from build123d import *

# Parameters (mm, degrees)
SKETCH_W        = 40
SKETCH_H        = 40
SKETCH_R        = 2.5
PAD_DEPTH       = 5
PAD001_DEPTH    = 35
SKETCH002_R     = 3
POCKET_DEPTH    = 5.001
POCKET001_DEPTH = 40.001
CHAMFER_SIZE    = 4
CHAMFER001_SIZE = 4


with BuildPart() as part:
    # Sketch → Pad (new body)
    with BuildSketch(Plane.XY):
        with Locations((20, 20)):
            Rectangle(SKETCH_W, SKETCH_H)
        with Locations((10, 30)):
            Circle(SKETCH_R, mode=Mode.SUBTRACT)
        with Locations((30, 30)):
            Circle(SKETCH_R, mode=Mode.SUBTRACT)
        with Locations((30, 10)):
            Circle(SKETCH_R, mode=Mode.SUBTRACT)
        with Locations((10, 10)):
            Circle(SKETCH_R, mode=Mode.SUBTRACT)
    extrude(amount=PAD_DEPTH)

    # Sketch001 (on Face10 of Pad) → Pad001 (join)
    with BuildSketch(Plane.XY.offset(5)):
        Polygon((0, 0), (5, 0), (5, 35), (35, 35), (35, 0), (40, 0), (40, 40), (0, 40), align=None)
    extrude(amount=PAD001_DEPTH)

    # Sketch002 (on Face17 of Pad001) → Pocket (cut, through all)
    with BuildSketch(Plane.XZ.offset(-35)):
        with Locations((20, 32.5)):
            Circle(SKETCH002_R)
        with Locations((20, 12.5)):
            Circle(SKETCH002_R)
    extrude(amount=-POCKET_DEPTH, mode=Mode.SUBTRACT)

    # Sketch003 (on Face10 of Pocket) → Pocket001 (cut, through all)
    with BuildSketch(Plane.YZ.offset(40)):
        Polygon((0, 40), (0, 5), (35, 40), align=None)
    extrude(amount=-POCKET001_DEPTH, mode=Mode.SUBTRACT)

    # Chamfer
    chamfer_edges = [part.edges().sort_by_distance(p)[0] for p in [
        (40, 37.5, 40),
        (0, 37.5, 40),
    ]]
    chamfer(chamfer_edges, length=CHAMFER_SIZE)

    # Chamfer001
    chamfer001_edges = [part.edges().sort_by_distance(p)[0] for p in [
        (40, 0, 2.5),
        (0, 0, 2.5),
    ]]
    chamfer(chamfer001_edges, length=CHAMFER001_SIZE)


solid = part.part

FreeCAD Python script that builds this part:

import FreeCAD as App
import Part
import Sketcher
Q = App.Units.Quantity


def edges_at(feature, points):
    """Names of the edges that pass closest to the given points."""
    edges = feature.Shape.Edges
    near = lambda p: min(range(len(edges)), key=lambda i: edges[i].distToShape(Part.Vertex(*p))[0])
    return sorted({f"Edge{near(p) + 1}" for p in points})

doc = App.newDocument("Part")
body = doc.addObject("PartDesign::Body", "Body")

# Sketch on XY plane
sketch1 = body.newObject("Sketcher::SketchObject", "Sketch")
sketch1.AttachmentSupport = (doc.getObject("XY_Plane"), [""])
sketch1.MapMode = "FlatFace"
sketch1.addGeometry([
    Part.LineSegment(App.Vector(0, 40, 0), App.Vector(0, 0, 0)),  # 0
    Part.LineSegment(App.Vector(0, 0, 0), App.Vector(40, 0, 0)),  # 1
    Part.LineSegment(App.Vector(40, 0, 0), App.Vector(40, 40, 0)),  # 2
    Part.LineSegment(App.Vector(40, 40, 0), App.Vector(0, 40, 0)),  # 3
    Part.Circle(App.Vector(10, 10, 0), App.Vector(0, 0, 1), 2.5),  # 4
    Part.Circle(App.Vector(30, 10, 0), App.Vector(0, 0, 1), 2.5),  # 5
    Part.Circle(App.Vector(10, 30, 0), App.Vector(0, 0, 1), 2.5),  # 6
    Part.Circle(App.Vector(30, 30, 0), App.Vector(0, 0, 1), 2.5),  # 7
], False)
sketch1.addConstraint([
    Sketcher.Constraint("Coincident", 0, 2, 1, 1),
    Sketcher.Constraint("Coincident", 1, 2, 2, 1),
    Sketcher.Constraint("Coincident", 2, 2, 3, 1),
    Sketcher.Constraint("Coincident", 3, 2, 0, 1),
    Sketcher.Constraint("Vertical", 0),
    Sketcher.Constraint("Horizontal", 1),
    Sketcher.Constraint("Vertical", 2),
    Sketcher.Constraint("Horizontal", 3),
    Sketcher.Constraint("Coincident", 0, 2, -1, 1),
    Sketcher.Constraint("Equal", 4, 5),
    Sketcher.Constraint("Equal", 5, 6),
    Sketcher.Constraint("Equal", 6, 7),
    Sketcher.Constraint("Horizontal", 4, 3, 5, 3),
    Sketcher.Constraint("Horizontal", 6, 3, 7, 3),
    Sketcher.Constraint("Vertical", 4, 3, 6, 3),
    Sketcher.Constraint("Vertical", 5, 3, 7, 3),
    Sketcher.Constraint("Equal", 3, 0),
    Sketcher.Constraint("Diameter", 4, Q("5 mm")),
    Sketcher.Constraint("DistanceX", 1, 1, 1, 2, Q("40 mm")),
    Sketcher.Constraint("DistanceX", -1, 1, 4, 3, Q("10 mm")),
    Sketcher.Constraint("DistanceY", -1, 1, 4, 3, Q("10 mm")),
    Sketcher.Constraint("DistanceX", -1, 1, 5, 3, Q("30 mm")),
    Sketcher.Constraint("DistanceY", -1, 1, 6, 3, Q("30 mm")),
])
pad1 = body.newObject("PartDesign::Pad", "Pad")
pad1.Profile = sketch1
pad1.Length = 5

# Sketch on XY plane
sketch2 = body.newObject("Sketcher::SketchObject", "Sketch001")
sketch2.AttachmentSupport = (doc.getObject("XY_Plane"), [""])
sketch2.MapMode = "FlatFace"
sketch2.AttachmentOffset = App.Placement(App.Vector(0, 0, 5), App.Rotation())
sketch2.addGeometry([
    Part.LineSegment(App.Vector(0, 0, 0), App.Vector(5, 0, 0)),  # 0
    Part.LineSegment(App.Vector(5, 0, 0), App.Vector(5, 35, 0)),  # 1
    Part.LineSegment(App.Vector(5, 35, 0), App.Vector(35, 35, 0)),  # 2
    Part.LineSegment(App.Vector(35, 35, 0), App.Vector(35, 0, 0)),  # 3
    Part.LineSegment(App.Vector(35, 0, 0), App.Vector(40, 0, 0)),  # 4
    Part.LineSegment(App.Vector(40, 0, 0), App.Vector(40, 40, 0)),  # 5
    Part.LineSegment(App.Vector(40, 40, 0), App.Vector(0, 40, 0)),  # 6
    Part.LineSegment(App.Vector(0, 40, 0), App.Vector(0, 0, 0)),  # 7
], False)
sketch2.addConstraint([
    Sketcher.Constraint("Coincident", 0, 2, 1, 1),
    Sketcher.Constraint("Coincident", 1, 2, 2, 1),
    Sketcher.Constraint("Coincident", 2, 2, 3, 1),
    Sketcher.Constraint("Coincident", 3, 2, 4, 1),
    Sketcher.Constraint("Coincident", 4, 2, 5, 1),
    Sketcher.Constraint("Coincident", 5, 2, 6, 1),
    Sketcher.Constraint("Coincident", 6, 2, 7, 1),
    Sketcher.Constraint("Coincident", 7, 2, 0, 1),
    Sketcher.Constraint("Horizontal", 0),
    Sketcher.Constraint("Vertical", 1),
    Sketcher.Constraint("Horizontal", 2),
    Sketcher.Constraint("Vertical", 3),
    Sketcher.Constraint("Horizontal", 4),
    Sketcher.Constraint("Vertical", 5),
    Sketcher.Constraint("Horizontal", 6),
    Sketcher.Constraint("Vertical", 7),
    Sketcher.Constraint("Coincident", 7, 2, -1, 1),
    Sketcher.Constraint("PointOnObject", 3, 2, -1),
    Sketcher.Constraint("Equal", 0, 4),
    Sketcher.Constraint("Equal", 6, 5),
    Sketcher.Constraint("DistanceX", 0, 1, 0, 2, Q("5 mm")),
    Sketcher.Constraint("DistanceX", 2, 1, 2, 2, Q("30 mm")),
    Sketcher.Constraint("DistanceY", 1, 1, 1, 2, Q("35 mm")),
])
pad2 = body.newObject("PartDesign::Pad", "Pad001")
pad2.Profile = sketch2
pad2.Length = 35

# Sketch on XZ plane
sketch3 = body.newObject("Sketcher::SketchObject", "Sketch002")
sketch3.AttachmentSupport = (doc.getObject("XZ_Plane"), [""])
sketch3.MapMode = "FlatFace"
sketch3.AttachmentOffset = App.Placement(App.Vector(0, 0, -35), App.Rotation())
sketch3.addGeometry([
    Part.Circle(App.Vector(20, 32.5, 0), App.Vector(0, 0, 1), 3),
    Part.Circle(App.Vector(20, 12.5, 0), App.Vector(0, 0, 1), 3),
], False)
sketch3.addConstraint([
    Sketcher.Constraint("Equal", 0, 1),
    Sketcher.Constraint("Vertical", 0, 3, 1, 3),
    Sketcher.Constraint("Diameter", 0, Q("6 mm")),
    Sketcher.Constraint("DistanceX", -1, 1, 0, 3, Q("20 mm")),
    Sketcher.Constraint("DistanceY", 1, 3, 0, 3, Q("20 mm")),
    Sketcher.Constraint("DistanceY", -1, 1, 0, 3, Q("32.5 mm")),
])
pocket1 = body.newObject("PartDesign::Pocket", "Pocket")
pocket1.Profile = sketch3
pocket1.Type = "ThroughAll"

# Sketch on YZ plane
sketch4 = body.newObject("Sketcher::SketchObject", "Sketch003")
sketch4.AttachmentSupport = (doc.getObject("YZ_Plane"), [""])
sketch4.MapMode = "FlatFace"
sketch4.AttachmentOffset = App.Placement(App.Vector(0, 0, 40), App.Rotation())
sketch4.addGeometry([
    Part.LineSegment(App.Vector(0, 40, 0), App.Vector(0, 5, 0)),
    Part.LineSegment(App.Vector(0, 5, 0), App.Vector(35, 40, 0)),
    Part.LineSegment(App.Vector(35, 40, 0), App.Vector(0, 40, 0)),
], False)
sketch4.addConstraint([
    Sketcher.Constraint("Coincident", 0, 2, 1, 1),
    Sketcher.Constraint("Coincident", 1, 2, 2, 1),
    Sketcher.Constraint("Coincident", 2, 2, 0, 1),
    Sketcher.Constraint("Vertical", 0),
    Sketcher.Constraint("Horizontal", 2),
    Sketcher.Constraint("PointOnObject", 0, 2, -2),
    Sketcher.Constraint("Equal", 2, 0),
    Sketcher.Constraint("DistanceX", 2, 2, 2, 1, Q("35 mm")),
    Sketcher.Constraint("DistanceY", -1, 1, 0, 2, Q("5 mm")),
])
pocket2 = body.newObject("PartDesign::Pocket", "Pocket001")
pocket2.Profile = sketch4
pocket2.Type = "ThroughAll"
doc.recompute()

chamfer = body.newObject("PartDesign::Chamfer", "Chamfer")
chamfer.Base = (pocket2, edges_at(pocket2, [(40, 37.5, 40), (0, 37.5, 40)]))
chamfer.Size = 4
doc.recompute()

chamfer2 = body.newObject("PartDesign::Chamfer", "Chamfer001")
chamfer2.Base = (chamfer, edges_at(chamfer, [(40, 0, 2.5), (0, 0, 2.5)]))
chamfer2.Size = 4

doc.recompute()
